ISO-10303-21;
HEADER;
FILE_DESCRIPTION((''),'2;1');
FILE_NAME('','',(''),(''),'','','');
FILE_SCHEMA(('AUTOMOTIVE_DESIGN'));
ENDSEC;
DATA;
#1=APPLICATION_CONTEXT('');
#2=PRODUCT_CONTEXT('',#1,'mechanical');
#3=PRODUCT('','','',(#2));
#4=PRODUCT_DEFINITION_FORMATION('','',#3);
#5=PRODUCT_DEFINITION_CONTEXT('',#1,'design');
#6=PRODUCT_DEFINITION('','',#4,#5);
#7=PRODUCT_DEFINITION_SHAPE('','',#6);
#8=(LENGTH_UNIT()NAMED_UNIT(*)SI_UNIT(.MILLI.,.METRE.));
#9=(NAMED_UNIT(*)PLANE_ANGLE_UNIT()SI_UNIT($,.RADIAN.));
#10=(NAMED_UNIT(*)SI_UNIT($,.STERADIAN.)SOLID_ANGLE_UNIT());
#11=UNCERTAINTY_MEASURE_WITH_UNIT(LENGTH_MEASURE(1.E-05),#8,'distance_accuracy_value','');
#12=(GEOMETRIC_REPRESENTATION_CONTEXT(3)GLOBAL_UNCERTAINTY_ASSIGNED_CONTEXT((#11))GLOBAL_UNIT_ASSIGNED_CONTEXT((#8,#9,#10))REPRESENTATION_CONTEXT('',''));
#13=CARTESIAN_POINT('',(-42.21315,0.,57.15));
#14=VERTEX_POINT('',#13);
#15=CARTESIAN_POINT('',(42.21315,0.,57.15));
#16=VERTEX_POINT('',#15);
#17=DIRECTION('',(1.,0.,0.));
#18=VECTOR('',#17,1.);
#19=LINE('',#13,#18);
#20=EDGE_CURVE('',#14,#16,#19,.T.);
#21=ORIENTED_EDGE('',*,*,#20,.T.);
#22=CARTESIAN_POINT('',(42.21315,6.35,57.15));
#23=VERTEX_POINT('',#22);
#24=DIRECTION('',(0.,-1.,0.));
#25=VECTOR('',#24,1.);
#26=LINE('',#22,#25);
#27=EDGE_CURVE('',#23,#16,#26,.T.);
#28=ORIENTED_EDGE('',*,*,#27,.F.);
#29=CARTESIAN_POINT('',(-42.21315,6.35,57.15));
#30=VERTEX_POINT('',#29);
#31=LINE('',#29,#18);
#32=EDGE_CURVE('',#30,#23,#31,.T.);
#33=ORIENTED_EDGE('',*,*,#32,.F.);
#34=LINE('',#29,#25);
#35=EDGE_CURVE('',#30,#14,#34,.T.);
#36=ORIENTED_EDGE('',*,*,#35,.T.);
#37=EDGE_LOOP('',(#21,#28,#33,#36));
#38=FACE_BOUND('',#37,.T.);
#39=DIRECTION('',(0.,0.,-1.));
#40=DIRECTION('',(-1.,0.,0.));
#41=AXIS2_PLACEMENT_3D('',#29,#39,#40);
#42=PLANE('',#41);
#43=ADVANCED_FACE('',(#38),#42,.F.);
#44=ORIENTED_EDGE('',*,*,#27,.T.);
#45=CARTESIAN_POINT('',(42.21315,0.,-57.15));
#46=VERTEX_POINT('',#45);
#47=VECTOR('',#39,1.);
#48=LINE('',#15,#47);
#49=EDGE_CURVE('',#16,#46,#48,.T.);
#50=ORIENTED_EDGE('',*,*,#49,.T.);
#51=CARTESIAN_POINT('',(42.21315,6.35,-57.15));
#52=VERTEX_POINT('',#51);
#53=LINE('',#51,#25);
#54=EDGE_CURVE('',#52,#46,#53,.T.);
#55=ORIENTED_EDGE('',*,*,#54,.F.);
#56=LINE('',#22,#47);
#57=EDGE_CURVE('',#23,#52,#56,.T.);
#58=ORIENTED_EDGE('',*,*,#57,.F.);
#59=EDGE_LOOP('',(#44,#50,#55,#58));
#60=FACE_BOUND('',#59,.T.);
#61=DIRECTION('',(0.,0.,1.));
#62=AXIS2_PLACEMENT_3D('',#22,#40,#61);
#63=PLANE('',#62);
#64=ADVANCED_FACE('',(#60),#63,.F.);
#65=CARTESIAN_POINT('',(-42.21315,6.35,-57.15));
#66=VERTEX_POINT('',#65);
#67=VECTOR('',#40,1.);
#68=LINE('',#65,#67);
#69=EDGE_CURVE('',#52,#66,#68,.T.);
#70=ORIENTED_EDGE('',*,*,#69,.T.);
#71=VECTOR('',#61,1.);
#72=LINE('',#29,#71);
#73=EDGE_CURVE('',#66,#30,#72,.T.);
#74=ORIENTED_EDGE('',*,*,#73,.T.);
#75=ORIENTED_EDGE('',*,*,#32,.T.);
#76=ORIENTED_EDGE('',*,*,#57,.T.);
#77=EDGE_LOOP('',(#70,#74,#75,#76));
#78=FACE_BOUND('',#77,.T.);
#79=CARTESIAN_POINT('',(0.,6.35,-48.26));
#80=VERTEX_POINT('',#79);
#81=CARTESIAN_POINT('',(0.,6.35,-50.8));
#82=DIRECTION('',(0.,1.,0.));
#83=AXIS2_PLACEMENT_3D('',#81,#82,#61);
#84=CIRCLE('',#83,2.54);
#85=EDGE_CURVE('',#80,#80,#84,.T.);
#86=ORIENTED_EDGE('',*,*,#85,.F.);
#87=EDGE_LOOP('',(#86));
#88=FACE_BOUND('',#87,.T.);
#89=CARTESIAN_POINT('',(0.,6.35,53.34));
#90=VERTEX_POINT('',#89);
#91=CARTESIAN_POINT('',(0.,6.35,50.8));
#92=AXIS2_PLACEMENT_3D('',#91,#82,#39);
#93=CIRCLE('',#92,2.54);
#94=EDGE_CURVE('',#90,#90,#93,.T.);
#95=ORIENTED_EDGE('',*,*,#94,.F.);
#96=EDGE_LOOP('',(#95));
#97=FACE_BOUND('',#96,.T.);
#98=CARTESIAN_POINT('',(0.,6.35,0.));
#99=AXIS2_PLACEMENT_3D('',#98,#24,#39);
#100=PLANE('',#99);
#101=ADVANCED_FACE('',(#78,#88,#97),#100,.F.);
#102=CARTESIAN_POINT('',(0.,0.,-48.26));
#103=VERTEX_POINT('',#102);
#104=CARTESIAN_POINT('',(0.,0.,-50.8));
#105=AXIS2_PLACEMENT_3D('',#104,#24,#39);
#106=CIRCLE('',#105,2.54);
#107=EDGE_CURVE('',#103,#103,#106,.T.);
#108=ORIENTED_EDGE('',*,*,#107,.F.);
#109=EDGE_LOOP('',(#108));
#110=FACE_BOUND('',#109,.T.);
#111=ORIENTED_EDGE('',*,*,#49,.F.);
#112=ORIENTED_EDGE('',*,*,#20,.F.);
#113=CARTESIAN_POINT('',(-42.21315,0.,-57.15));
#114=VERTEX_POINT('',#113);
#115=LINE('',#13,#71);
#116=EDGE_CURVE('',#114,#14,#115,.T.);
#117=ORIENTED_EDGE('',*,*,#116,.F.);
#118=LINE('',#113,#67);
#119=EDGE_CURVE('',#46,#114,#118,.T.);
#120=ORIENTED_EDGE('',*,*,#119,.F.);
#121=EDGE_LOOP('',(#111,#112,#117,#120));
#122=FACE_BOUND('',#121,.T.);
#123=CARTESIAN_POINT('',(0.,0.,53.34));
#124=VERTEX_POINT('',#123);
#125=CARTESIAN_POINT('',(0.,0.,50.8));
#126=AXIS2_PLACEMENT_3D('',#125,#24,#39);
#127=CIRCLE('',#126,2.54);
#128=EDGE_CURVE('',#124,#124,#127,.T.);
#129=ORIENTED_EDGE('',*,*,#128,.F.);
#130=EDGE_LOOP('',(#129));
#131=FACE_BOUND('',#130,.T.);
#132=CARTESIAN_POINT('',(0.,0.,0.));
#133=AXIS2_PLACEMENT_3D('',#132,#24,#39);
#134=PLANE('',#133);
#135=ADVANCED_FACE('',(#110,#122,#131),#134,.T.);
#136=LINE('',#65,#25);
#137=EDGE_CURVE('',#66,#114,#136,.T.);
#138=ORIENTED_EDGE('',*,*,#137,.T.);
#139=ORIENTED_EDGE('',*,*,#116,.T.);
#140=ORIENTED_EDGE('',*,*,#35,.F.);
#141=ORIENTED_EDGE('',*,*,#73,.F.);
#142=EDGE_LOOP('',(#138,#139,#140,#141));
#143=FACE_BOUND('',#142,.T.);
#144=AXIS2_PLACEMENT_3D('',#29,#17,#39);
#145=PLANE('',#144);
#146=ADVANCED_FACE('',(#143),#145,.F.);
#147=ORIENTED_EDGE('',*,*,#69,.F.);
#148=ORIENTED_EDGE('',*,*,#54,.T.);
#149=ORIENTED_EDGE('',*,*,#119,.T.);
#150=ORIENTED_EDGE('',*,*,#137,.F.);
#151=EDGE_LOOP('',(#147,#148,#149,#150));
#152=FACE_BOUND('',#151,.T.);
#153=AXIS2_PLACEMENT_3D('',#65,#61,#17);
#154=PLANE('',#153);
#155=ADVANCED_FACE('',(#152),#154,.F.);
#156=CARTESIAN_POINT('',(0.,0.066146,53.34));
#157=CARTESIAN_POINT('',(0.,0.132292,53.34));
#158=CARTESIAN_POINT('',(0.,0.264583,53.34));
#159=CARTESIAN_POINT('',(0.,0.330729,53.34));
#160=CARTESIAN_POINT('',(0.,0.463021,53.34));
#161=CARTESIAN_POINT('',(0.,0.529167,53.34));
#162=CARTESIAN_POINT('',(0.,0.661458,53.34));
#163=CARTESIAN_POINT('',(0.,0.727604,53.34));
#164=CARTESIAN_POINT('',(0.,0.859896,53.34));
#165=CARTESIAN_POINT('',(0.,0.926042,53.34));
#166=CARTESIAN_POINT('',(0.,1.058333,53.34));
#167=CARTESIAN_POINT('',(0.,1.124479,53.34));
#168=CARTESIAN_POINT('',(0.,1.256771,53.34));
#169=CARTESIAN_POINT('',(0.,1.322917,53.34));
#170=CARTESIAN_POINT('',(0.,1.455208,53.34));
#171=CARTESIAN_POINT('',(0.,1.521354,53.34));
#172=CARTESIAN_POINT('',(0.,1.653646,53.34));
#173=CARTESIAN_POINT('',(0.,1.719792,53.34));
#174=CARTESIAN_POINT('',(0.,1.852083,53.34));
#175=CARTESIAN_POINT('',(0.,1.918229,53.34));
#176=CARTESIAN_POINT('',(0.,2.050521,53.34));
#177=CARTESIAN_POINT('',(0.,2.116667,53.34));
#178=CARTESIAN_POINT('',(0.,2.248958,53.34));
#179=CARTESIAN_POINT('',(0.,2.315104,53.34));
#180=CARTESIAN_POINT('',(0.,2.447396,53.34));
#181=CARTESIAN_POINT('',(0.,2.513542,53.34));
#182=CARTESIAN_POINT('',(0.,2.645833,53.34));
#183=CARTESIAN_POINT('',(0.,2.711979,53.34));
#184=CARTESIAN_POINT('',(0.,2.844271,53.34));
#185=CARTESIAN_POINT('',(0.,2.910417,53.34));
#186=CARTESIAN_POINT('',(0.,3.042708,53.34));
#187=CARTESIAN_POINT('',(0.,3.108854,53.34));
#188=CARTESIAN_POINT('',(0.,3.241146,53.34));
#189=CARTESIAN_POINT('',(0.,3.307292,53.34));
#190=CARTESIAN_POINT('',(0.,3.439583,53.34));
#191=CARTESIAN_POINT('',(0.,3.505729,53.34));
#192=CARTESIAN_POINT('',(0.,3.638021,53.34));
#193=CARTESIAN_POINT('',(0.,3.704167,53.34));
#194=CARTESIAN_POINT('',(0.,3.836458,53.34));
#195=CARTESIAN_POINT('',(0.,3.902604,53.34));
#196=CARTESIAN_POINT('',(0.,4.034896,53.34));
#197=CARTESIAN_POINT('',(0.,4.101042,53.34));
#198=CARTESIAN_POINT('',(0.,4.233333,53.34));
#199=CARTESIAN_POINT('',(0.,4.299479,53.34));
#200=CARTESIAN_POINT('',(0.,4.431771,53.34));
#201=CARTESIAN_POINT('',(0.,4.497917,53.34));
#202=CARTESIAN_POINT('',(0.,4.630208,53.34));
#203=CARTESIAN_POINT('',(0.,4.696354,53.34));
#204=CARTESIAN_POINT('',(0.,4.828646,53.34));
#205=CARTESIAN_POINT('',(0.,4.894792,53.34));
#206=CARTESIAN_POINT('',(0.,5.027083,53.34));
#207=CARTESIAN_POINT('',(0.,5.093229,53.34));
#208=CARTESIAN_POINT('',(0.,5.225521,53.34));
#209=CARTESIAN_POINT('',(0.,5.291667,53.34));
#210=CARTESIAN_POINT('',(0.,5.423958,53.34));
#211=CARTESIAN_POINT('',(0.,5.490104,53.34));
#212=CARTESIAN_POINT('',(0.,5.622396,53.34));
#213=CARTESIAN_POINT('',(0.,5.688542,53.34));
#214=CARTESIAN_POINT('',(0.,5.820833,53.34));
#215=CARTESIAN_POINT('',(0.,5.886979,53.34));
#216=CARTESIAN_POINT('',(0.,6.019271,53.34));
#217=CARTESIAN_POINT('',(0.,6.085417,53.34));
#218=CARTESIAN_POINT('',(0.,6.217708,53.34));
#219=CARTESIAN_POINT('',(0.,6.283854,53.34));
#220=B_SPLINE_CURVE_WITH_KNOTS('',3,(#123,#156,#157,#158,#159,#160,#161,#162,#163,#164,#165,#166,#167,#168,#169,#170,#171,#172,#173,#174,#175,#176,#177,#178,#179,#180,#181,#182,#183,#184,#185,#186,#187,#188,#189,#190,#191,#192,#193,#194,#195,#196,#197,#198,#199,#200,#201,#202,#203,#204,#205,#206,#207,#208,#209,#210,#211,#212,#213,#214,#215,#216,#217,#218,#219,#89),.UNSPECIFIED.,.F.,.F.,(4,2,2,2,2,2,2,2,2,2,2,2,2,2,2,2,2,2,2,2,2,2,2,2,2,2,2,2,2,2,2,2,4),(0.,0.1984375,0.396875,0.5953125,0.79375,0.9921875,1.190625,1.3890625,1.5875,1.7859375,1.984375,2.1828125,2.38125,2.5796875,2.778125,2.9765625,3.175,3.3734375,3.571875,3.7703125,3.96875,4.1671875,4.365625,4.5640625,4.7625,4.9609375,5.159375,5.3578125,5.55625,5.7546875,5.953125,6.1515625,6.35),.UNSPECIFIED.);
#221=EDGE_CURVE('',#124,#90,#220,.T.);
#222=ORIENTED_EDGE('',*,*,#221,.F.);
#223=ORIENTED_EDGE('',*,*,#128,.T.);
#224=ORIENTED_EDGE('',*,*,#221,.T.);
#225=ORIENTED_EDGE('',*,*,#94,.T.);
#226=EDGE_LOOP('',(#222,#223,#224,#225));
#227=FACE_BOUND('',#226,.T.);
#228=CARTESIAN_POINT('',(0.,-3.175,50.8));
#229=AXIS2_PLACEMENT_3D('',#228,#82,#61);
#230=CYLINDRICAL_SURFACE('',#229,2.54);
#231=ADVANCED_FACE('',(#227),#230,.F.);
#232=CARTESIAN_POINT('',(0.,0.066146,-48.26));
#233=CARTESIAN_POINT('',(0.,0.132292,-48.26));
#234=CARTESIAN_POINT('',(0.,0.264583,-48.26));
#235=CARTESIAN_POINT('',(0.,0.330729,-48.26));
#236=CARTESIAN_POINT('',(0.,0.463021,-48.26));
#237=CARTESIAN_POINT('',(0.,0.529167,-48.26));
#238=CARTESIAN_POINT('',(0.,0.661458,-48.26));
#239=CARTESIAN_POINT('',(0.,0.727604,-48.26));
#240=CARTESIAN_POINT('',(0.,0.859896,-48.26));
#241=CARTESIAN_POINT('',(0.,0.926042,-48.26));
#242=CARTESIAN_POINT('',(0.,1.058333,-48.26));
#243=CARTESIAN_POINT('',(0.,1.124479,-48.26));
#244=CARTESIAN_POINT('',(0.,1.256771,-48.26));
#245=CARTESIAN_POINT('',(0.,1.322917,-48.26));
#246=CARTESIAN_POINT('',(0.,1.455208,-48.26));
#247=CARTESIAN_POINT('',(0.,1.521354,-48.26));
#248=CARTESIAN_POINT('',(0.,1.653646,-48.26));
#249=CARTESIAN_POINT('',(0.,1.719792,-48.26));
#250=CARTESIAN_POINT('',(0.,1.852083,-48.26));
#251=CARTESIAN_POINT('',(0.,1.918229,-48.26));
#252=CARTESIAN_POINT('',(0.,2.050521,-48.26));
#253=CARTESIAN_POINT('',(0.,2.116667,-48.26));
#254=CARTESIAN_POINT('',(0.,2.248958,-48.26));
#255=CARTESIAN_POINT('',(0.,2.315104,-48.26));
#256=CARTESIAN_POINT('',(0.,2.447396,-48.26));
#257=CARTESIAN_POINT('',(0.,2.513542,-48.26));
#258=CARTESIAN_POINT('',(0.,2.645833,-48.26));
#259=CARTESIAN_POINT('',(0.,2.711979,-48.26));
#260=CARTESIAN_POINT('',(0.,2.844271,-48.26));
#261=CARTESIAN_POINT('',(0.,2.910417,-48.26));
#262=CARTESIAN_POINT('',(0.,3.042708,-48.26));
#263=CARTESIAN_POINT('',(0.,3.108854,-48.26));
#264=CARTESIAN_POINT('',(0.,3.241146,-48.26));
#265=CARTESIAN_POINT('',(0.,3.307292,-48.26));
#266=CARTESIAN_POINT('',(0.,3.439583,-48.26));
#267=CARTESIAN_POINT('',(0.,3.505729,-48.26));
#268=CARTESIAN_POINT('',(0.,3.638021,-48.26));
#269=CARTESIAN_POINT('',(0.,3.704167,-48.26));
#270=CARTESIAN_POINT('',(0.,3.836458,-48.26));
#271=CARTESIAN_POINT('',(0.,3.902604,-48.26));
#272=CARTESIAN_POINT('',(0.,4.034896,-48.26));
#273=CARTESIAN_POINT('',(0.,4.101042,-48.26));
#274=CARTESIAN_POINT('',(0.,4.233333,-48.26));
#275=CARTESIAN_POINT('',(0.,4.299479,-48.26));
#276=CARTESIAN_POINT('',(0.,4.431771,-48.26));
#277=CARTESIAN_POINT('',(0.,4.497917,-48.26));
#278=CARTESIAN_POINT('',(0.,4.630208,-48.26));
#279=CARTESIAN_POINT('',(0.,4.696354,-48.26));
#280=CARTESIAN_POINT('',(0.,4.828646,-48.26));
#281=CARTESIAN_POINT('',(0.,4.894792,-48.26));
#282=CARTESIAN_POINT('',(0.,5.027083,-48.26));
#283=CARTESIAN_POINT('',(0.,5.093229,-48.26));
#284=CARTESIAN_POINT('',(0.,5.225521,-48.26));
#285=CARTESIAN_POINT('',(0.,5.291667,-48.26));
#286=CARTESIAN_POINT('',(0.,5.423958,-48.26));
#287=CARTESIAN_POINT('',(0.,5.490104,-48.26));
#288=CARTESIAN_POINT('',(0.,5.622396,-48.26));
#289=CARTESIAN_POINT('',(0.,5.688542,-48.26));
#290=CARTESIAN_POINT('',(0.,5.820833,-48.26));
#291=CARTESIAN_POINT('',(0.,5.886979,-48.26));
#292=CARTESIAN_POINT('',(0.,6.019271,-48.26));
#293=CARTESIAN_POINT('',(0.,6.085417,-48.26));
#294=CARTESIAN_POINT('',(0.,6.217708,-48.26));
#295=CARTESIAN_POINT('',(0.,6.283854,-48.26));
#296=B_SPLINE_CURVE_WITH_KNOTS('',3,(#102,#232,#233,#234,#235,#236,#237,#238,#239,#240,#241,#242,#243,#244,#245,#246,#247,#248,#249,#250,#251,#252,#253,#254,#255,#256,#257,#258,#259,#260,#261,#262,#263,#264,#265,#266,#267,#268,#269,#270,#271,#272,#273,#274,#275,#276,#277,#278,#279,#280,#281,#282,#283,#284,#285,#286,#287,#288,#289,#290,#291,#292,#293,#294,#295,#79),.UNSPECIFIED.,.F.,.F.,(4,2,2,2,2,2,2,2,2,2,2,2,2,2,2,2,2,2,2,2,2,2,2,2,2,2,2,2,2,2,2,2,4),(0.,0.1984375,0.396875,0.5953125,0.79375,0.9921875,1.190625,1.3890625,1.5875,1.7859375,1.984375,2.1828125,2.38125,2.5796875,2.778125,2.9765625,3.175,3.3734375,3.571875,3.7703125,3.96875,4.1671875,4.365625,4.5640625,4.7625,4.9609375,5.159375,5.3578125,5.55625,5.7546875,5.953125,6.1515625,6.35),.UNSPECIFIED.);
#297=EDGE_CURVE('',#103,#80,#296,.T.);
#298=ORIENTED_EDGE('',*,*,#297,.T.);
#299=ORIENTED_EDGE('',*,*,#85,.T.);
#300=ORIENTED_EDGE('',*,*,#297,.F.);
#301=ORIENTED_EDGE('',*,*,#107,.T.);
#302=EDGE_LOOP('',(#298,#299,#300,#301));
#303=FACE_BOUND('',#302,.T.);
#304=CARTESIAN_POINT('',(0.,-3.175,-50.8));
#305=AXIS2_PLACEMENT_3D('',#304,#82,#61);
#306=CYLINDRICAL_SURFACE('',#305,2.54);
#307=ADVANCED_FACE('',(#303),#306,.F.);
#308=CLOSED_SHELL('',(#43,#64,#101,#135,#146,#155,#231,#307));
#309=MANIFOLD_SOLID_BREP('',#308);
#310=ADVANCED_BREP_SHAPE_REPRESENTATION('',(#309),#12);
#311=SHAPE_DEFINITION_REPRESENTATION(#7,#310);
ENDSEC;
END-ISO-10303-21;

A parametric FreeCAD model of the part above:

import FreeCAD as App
import Part
import Sketcher
Q = App.Units.Quantity


def add_polygon(sketch, points):
    """Adds a closed chain of lines whose ends are joined by coincident constraints."""
    first, n = sketch.GeometryCount, len(points)
    for a, b in zip(points, points[1:] + points[:1]):
        sketch.addGeometry(Part.LineSegment(App.Vector(*a, 0), App.Vector(*b, 0)), False)
    for i in range(n):
        sketch.addConstraint(Sketcher.Constraint("Coincident", first + i, 2, first + (i + 1) % n, 1))

doc = App.newDocument("Part")
params = doc.addObject("Spreadsheet::Sheet", "Params")
for row, (alias, value) in enumerate([
    ("sketch1_height", "4.5 in"),
    ("pad1_length", "0.25 in"),
    ("sketch2_diameter", "0.2 in"),
    ("pocket1_length", "0.375 in"),
], start=1):
    params.set(f"A{row}", alias)
    params.set(f"B{row}", "=" + value)
    params.setAlias(f"B{row}", alias)

body = doc.addObject("PartDesign::Body", "Body")

sketch1 = body.newObject("Sketcher::SketchObject", "Sketch")
sketch1.AttachmentSupport = (doc.getObject("XZ_Plane"), [""])
sketch1.MapMode = "FlatFace"
add_polygon(sketch1, [(-42.21315, -57.15), (-42.21315, 57.15), (42.21315, 57.15), (42.21315, -57.15)])
sketch1.addConstraint(Sketcher.Constraint("Vertical", 0))
sketch1.addConstraint(Sketcher.Constraint("Horizontal", 1))
sketch1.addConstraint(Sketcher.Constraint("Vertical", 2))
sketch1.addConstraint(Sketcher.Constraint("Horizontal", 3))
sketch1.addConstraint(Sketcher.Constraint("Symmetric", 0, 2, 2, 2, -1, 1))
sketch1.addConstraint(Sketcher.Constraint("DistanceY", 0, 1, 0, 2, Q("4.5 in")))
sketch1.addConstraint(Sketcher.Constraint("DistanceX", 1, 1, 1, 2, 84.4263))
sketch1.setExpression("Constraints[9]", "Params.sketch1_height")
pad1 = body.newObject("PartDesign::Pad", "Pad")
pad1.Profile = sketch1
pad1.setExpression("Length", "Params.pad1_length")
pad1.Reversed = True

sketch2 = body.newObject("Sketcher::SketchObject", "Sketch001")
sketch2.AttachmentSupport = (doc.getObject("XZ_Plane"), [""])
sketch2.MapMode = "FlatFace"
sketch2.AttachmentOffset = App.Placement(App.Vector(0, 0, -0.25 * 25.4), App.Rotation())
sketch2.addGeometry(Part.Circle(App.Vector(0, -50.8, 0), App.Vector(0, 0, 1), 2.54), False)
sketch2.addGeometry(Part.Circle(App.Vector(0, 50.8, 0), App.Vector(0, 0, 1), 2.54), False)
sketch2.addConstraint(Sketcher.Constraint("Equal", 0, 1))
sketch2.addConstraint(Sketcher.Constraint("Symmetric", 0, 3, 1, 3, -1, 1))
sketch2.addConstraint(Sketcher.Constraint("PointOnObject", 0, 3, -2))
sketch2.addConstraint(Sketcher.Constraint("Diameter", 0, Q("0.2 in")))
sketch2.addConstraint(Sketcher.Constraint("DistanceY", 0, 3, -1, 1, Q("2 in")))
sketch2.setExpression("Constraints[3]", "Params.sketch2_diameter")
pocket1 = body.newObject("PartDesign::Pocket", "Pocket")
pocket1.Profile = sketch2
pocket1.setExpression("Length", "Params.pocket1_length")
pocket1.Reversed = True

doc.recompute()
